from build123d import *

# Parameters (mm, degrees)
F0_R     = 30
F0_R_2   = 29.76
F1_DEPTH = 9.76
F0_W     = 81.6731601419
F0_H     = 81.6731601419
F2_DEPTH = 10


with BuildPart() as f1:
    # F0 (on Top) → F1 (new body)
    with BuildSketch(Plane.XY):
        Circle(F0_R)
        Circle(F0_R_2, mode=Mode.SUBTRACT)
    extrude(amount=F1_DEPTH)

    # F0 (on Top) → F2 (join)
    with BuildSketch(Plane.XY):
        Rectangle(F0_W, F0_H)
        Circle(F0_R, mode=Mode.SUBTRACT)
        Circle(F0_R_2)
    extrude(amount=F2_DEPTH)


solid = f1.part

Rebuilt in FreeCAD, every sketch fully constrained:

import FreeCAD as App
import Part
import Sketcher

V = App.Vector
Q = App.Units.Quantity

doc = App.newDocument("Part")
body = doc.addObject("PartDesign::Body", "Body")

# Sketch on XY plane
sketch1 = body.newObject("Sketcher::SketchObject", "Sketch")
sketch1.AttachmentSupport = (doc.getObject("XY_Plane"), [""])
sketch1.MapMode = "FlatFace"
sketch1.addGeometry([
    Part.Circle(V(0, 0, 0), V(0, 0, 1), 30),
    Part.Circle(V(0, 0, 0), V(0, 0, 1), 30),
], False)
sketch1.addConstraint([
    Sketcher.Constraint("Coincident", 0, 3, -1, 1),
    Sketcher.Constraint("Coincident", 1, 3, -1, 1),
    Sketcher.Constraint("Diameter", 0, Q("60 mm")),
    Sketcher.Constraint("Diameter", 1, Q("59.52 mm")),
])
pad1 = body.newObject("PartDesign::Pad", "Pad")
pad1.Profile = sketch1
pad1.Length = 9.76

# Sketch on XY plane
sketch2 = body.newObject("Sketcher::SketchObject", "Sketch001")
sketch2.AttachmentSupport = (doc.getObject("XY_Plane"), [""])
sketch2.MapMode = "FlatFace"
sketch2.addGeometry([
    Part.LineSegment(V(-41, 41, 0), V(-41, -41, 0)),  # 0
    Part.LineSegment(V(-41, -41, 0), V(41, -41, 0)),  # 1
    Part.LineSegment(V(41, -41, 0), V(41, 41, 0)),  # 2
    Part.LineSegment(V(41, 41, 0), V(-41, 41, 0)),  # 3
    Part.Circle(V(0, 0, 0), V(0, 0, 1), 30),  # 4
    Part.Circle(V(0, 0, 0), V(0, 0, 1), 30),  # 5
], False)
sketch2.addConstraint([
    Sketcher.Constraint("Coincident", 0, 2, 1, 1),
    Sketcher.Constraint("Coincident", 1, 2, 2, 1),
    Sketcher.Constraint("Coincident", 2, 2, 3, 1),
    Sketcher.Constraint("Coincident", 3, 2, 0, 1),
    Sketcher.Constraint("Vertical", 0),
    Sketcher.Constraint("Horizontal", 1),
    Sketcher.Constraint("Vertical", 2),
    Sketcher.Constraint("Horizontal", 3),
    Sketcher.Constraint("Coincident", 4, 3, -1, 1),
    Sketcher.Constraint("Coincident", 5, 3, -1, 1),
    Sketcher.Constraint("Symmetric", 0, 2, 2, 2, -1, 1),
    Sketcher.Constraint("Equal", 3, 0),
    Sketcher.Constraint("Diameter", 4, Q("60 mm")),
    Sketcher.Constraint("Diameter", 5, Q("59.52 mm")),
    Sketcher.Constraint("DistanceX", 1, 1, 1, 2, Q("81.67316 mm")),
])
pad2 = body.newObject("PartDesign::Pad", "Pad001")
pad2.Profile = sketch2
pad2.Length = 10

doc.recompute()
